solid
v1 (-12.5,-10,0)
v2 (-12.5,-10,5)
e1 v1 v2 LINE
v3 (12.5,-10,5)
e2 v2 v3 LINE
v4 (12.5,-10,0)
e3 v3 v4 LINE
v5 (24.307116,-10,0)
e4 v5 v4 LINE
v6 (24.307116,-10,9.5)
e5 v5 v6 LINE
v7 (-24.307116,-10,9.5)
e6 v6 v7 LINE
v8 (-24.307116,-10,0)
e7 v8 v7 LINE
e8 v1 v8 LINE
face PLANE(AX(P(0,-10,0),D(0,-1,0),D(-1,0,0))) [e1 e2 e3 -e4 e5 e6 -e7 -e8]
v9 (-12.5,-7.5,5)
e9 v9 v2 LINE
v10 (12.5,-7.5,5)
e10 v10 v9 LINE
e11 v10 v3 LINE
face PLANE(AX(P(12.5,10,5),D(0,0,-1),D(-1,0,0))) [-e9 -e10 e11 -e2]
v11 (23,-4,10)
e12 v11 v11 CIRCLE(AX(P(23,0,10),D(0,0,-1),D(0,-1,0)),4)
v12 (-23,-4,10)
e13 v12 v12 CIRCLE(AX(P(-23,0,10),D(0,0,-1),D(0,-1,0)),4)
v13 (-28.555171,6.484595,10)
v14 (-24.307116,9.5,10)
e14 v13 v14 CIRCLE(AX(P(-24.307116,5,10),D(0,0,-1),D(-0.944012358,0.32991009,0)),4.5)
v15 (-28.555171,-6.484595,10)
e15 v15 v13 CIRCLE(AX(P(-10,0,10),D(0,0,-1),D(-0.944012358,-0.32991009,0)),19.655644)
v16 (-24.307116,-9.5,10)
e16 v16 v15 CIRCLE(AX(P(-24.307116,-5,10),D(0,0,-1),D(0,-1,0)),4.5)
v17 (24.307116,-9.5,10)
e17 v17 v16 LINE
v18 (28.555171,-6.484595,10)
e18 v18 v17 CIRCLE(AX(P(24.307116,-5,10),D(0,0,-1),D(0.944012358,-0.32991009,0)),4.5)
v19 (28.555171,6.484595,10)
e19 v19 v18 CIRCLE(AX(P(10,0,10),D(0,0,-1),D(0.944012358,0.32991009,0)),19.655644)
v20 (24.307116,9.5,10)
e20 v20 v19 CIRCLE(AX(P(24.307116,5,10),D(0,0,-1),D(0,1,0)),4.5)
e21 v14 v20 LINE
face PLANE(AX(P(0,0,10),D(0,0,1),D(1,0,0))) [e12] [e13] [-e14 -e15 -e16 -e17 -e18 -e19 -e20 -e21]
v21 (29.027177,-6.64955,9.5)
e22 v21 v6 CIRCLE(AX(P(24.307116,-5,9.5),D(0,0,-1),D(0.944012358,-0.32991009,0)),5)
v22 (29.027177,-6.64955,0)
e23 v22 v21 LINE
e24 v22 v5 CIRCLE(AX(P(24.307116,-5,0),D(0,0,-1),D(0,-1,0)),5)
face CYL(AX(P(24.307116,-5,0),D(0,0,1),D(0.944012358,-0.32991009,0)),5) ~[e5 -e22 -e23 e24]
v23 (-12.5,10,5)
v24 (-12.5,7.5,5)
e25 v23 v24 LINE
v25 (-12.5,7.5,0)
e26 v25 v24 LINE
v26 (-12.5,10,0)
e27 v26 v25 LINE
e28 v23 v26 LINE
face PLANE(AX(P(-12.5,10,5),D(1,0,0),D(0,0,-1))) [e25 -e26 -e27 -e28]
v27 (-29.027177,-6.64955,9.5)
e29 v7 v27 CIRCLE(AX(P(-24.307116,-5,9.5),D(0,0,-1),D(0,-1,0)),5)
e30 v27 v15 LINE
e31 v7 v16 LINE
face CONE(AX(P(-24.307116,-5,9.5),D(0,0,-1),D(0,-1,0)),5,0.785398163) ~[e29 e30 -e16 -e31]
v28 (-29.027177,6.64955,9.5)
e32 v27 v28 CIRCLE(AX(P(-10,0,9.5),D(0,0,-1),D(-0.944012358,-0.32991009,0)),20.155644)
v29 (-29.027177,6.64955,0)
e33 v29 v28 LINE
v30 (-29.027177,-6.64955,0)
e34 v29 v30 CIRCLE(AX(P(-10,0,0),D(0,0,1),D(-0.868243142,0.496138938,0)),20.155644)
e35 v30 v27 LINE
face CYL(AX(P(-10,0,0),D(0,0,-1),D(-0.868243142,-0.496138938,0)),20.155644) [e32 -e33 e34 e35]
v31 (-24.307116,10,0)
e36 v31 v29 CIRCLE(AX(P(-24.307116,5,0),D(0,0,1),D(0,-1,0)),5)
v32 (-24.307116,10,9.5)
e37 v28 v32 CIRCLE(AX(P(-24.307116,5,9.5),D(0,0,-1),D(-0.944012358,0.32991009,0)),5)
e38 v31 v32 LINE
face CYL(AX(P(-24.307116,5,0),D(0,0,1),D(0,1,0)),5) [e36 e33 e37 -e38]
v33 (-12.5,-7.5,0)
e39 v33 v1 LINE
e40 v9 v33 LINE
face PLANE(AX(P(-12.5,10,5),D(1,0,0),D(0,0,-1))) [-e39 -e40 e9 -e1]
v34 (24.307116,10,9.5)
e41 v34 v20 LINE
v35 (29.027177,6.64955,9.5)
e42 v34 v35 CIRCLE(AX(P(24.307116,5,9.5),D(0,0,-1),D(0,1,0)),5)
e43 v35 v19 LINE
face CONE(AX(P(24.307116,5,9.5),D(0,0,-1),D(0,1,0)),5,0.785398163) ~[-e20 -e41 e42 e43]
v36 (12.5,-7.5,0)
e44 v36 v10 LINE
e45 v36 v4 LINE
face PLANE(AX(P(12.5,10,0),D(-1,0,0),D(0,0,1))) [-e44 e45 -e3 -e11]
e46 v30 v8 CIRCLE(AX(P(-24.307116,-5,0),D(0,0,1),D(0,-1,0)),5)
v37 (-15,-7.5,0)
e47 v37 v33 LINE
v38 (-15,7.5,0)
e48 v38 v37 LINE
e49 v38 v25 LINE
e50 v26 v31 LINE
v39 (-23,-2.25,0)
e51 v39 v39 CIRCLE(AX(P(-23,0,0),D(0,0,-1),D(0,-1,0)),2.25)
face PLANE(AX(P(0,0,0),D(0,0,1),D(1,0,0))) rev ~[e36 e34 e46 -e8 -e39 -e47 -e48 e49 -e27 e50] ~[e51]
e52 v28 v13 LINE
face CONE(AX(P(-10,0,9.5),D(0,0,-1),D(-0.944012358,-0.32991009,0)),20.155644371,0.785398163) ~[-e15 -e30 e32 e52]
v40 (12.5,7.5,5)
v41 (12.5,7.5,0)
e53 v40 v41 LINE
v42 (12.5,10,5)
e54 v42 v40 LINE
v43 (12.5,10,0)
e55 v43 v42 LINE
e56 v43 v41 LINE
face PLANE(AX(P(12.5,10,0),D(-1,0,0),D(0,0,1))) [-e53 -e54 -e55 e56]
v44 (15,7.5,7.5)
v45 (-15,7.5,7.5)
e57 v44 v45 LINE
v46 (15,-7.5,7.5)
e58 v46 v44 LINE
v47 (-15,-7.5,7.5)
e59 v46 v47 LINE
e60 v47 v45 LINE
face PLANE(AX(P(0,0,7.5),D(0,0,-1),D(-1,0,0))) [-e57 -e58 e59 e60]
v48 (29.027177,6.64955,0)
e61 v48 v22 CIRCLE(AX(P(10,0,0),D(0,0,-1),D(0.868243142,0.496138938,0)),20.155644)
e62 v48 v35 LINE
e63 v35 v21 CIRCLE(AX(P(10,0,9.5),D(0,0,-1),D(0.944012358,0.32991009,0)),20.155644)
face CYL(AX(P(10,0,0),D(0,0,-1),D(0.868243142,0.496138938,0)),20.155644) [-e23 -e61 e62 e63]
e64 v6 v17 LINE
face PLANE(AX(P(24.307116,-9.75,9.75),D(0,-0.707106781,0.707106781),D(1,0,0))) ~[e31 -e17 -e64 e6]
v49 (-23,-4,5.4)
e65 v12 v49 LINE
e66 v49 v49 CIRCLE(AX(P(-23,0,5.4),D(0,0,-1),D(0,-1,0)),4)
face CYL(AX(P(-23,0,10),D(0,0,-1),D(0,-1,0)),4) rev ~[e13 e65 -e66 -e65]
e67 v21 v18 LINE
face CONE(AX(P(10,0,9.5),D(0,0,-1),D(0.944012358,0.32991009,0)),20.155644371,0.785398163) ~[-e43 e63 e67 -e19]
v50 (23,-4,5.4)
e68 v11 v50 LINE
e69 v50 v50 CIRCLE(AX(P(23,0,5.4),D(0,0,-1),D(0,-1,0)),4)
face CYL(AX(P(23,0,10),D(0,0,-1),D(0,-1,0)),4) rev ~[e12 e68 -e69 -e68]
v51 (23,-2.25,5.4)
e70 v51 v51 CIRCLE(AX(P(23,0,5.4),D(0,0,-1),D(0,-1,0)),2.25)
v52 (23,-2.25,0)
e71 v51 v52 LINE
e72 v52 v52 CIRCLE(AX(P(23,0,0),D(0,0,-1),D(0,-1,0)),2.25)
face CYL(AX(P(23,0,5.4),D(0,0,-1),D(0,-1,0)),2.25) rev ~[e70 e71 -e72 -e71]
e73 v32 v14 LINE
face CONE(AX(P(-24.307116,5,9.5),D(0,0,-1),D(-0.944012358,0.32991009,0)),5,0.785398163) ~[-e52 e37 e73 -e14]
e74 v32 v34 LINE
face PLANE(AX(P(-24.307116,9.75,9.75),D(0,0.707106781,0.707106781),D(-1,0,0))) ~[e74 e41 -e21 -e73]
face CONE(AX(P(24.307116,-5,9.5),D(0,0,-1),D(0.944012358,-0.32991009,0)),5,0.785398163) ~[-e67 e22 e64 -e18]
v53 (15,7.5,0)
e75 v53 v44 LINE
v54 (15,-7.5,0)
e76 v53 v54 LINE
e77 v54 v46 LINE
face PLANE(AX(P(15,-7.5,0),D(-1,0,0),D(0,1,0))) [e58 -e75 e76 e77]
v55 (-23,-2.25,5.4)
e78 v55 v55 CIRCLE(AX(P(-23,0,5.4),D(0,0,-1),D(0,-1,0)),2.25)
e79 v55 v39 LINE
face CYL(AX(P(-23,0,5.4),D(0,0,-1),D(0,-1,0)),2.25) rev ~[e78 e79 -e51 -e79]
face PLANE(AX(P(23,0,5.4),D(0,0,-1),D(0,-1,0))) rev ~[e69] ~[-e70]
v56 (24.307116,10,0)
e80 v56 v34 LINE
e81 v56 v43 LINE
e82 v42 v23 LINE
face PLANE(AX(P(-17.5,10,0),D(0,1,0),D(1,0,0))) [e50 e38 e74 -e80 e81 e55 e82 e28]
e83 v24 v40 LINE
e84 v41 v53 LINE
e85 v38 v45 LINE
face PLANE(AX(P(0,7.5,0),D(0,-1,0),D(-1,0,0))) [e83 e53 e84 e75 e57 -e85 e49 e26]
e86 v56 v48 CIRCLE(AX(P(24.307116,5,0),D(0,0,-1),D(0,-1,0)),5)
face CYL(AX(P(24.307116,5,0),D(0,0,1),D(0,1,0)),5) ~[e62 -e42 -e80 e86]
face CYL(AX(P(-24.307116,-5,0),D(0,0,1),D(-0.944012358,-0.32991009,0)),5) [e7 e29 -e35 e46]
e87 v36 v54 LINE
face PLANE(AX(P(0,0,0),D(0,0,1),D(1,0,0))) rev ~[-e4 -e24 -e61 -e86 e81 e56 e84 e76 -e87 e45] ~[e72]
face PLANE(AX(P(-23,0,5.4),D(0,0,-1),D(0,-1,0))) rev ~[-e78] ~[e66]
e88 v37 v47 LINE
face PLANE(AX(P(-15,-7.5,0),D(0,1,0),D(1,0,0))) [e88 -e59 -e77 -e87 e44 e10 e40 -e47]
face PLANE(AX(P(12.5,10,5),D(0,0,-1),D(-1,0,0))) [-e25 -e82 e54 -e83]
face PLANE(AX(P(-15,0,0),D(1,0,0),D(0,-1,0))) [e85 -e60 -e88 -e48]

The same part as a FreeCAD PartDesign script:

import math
import FreeCAD as App
import Part
import Sketcher

V = App.Vector


def edges_at(feature, points):
    """Names of the edges that pass closest to the given points."""
    edges = feature.Shape.Edges
    near = lambda p: min(range(len(edges)), key=lambda i: edges[i].distToShape(Part.Vertex(*p))[0])
    return sorted({f"Edge{near(p) + 1}" for p in points})

doc = App.newDocument("Part")
body = doc.addObject("PartDesign::Body", "Body")

sketch1 = body.newObject("Sketcher::SketchObject", "Sketch")
sketch1.AttachmentSupport = (doc.getObject("XY_Plane"), [""])
sketch1.MapMode = "FlatFace"
sketch1.addGeometry([
    Part.LineSegment(V(-17.5, 10, 0), V(-17.5, -10, 0)),
    Part.LineSegment(V(-17.5, -10, 0), V(17.5, -10, 0)),
    Part.LineSegment(V(17.5, -10, 0), V(17.5, 10, 0)),
    Part.LineSegment(V(17.5, 10, 0), V(-17.5, 10, 0)),
], False)
sketch1.addConstraint([
    Sketcher.Constraint("Coincident", 0, 2, 1, 1),
    Sketcher.Constraint("Coincident", 1, 2, 2, 1),
    Sketcher.Constraint("Coincident", 2, 2, 3, 1),
    Sketcher.Constraint("Coincident", 3, 2, 0, 1),
    Sketcher.Constraint("Vertical", 0),
    Sketcher.Constraint("Horizontal", 1),
    Sketcher.Constraint("Vertical", 2),
    Sketcher.Constraint("Horizontal", 3),
    Sketcher.Constraint("Symmetric", 0, 2, 2, 2, -1, 1),
    Sketcher.Constraint("DistanceX", 1, 1, 1, 2, 35.0),
    Sketcher.Constraint("DistanceY", 0, 2, 0, 1, 20.0),
])
pad1 = body.newObject("PartDesign::Pad", "Pad")
pad1.Profile = sketch1
pad1.Length = 10

sketch2 = body.newObject("Sketcher::SketchObject", "Sketch001")
sketch2.AttachmentSupport = (doc.getObject("XY_Plane"), [""])
sketch2.MapMode = "FlatFace"
sketch2.addGeometry([
    Part.LineSegment(V(-15, -7.5, 0), V(-15, 7.5, 0)),
    Part.LineSegment(V(-15, 7.5, 0), V(15, 7.5, 0)),
    Part.LineSegment(V(15, 7.5, 0), V(15, -7.5, 0)),
    Part.LineSegment(V(15, -7.5, 0), V(-15, -7.5, 0)),
], False)
sketch2.addConstraint([
    Sketcher.Constraint("Coincident", 0, 2, 1, 1),
    Sketcher.Constraint("Coincident", 1, 2, 2, 1),
    Sketcher.Constraint("Coincident", 2, 2, 3, 1),
    Sketcher.Constraint("Coincident", 3, 2, 0, 1),
    Sketcher.Constraint("Vertical", 0),
    Sketcher.Constraint("Horizontal", 1),
    Sketcher.Constraint("Vertical", 2),
    Sketcher.Constraint("Horizontal", 3),
    Sketcher.Constraint("Symmetric", 0, 2, 2, 2, -1, 1),
    Sketcher.Constraint("DistanceX", 1, 1, 1, 2, 30.0),
    Sketcher.Constraint("DistanceY", 0, 1, 0, 2, 15.0),
])
pocket1 = body.newObject("PartDesign::Pocket", "Pocket")
pocket1.Profile = sketch2
pocket1.Length = 7.5
pocket1.Reversed = True

sketch3 = body.newObject("Sketcher::SketchObject", "Sketch002")
sketch3.AttachmentSupport = (doc.getObject("XZ_Plane"), [""])
sketch3.MapMode = "FlatFace"
sketch3.AttachmentOffset = App.Placement(V(0, 0, -10), App.Rotation())
sketch3.addGeometry([
    Part.LineSegment(V(12.5, 5, 0), V(12.5, 0, 0)),
    Part.LineSegment(V(12.5, 0, 0), V(-12.5, 0, 0)),
    Part.LineSegment(V(-12.5, 0, 0), V(-12.5, 5, 0)),
    Part.LineSegment(V(-12.5, 5, 0), V(12.5, 5, 0)),
], False)
sketch3.addConstraint([
    Sketcher.Constraint("Coincident", 0, 2, 1, 1),
    Sketcher.Constraint("Coincident", 1, 2, 2, 1),
    Sketcher.Constraint("Coincident", 2, 2, 3, 1),
    Sketcher.Constraint("Coincident", 3, 2, 0, 1),
    Sketcher.Constraint("Vertical", 0),
    Sketcher.Constraint("Horizontal", 1),
    Sketcher.Constraint("Vertical", 2),
    Sketcher.Constraint("Horizontal", 3),
    Sketcher.Constraint("Symmetric", 0, 2, 1, 2, -1, 1),
    Sketcher.Constraint("DistanceX", 1, 2, 1, 1, 25.0),
    Sketcher.Constraint("DistanceY", 0, 2, 0, 1, 5.0),
])
pocket2 = body.newObject("PartDesign::Pocket", "Pocket001")
pocket2.Profile = sketch3
pocket2.Type = "ThroughAll"
pocket2.Reversed = True

sketch4 = body.newObject("Sketcher::SketchObject", "Sketch003")
sketch4.AttachmentSupport = (doc.getObject("XY_Plane"), [""])
sketch4.MapMode = "FlatFace"
sketch4.addGeometry([
    Part.LineSegment(V(17.5, 10, 0), V(27.5, 10, 0)),
    Part.ArcOfCircle(Part.Circle(V(10, 0, 0), V(0, 0, 1), 20.155644), math.radians(-29.744881), math.radians(29.744881)),
    Part.LineSegment(V(27.5, -10, 0), V(17.5, -10, 0)),
    Part.LineSegment(V(17.5, -10, 0), V(17.5, 10, 0)),
    Part.LineSegment(V(-27.5, 10, 0), V(-17.5, 10, 0)),
    Part.LineSegment(V(-17.5, 10, 0), V(-17.5, -10, 0)),
    Part.LineSegment(V(-17.5, -10, 0), V(-27.5, -10, 0)),
    Part.ArcOfCircle(Part.Circle(V(-10, 0, 0), V(0, 0, 1), 20.155644), math.radians(150.255119), math.radians(209.744881)),
], False)
sketch4.addConstraint([
    Sketcher.Constraint("Coincident", 0, 2, 1, 2),
    Sketcher.Constraint("Coincident", 1, 1, 2, 1),
    Sketcher.Constraint("Coincident", 2, 2, 3, 1),
    Sketcher.Constraint("Coincident", 3, 2, 0, 1),
    Sketcher.Constraint("Coincident", 4, 2, 5, 1),
    Sketcher.Constraint("Coincident", 5, 2, 6, 1),
    Sketcher.Constraint("Coincident", 6, 2, 7, 2),
    Sketcher.Constraint("Coincident", 7, 1, 4, 1),
    Sketcher.Constraint("Horizontal", 0),
    Sketcher.Constraint("Horizontal", 2),
    Sketcher.Constraint("Vertical", 3),
    Sketcher.Constraint("Horizontal", 4),
    Sketcher.Constraint("Vertical", 5),
    Sketcher.Constraint("Horizontal", 6),
    Sketcher.Constraint("Equal", 1, 7),
    Sketcher.Constraint("Symmetric", 1, 3, 7, 3, -1, 1),
    Sketcher.Constraint("Symmetric", 2, 2, 4, 2, -1, 1),
    Sketcher.Constraint("Symmetric", 1, 1, 6, 2, -2),
    Sketcher.Constraint("Horizontal", 3, 2, 4, 2),
    Sketcher.Constraint("DistanceX", 0, 1, 0, 2, 10.0),
    Sketcher.Constraint("DistanceX", -1, 1, 1, 3, 10.0),
    Sketcher.Constraint("DistanceY", -1, 1, 0, 2, 10.0),
    Sketcher.Constraint("DistanceX", 4, 2, 3, 2, 35.0),
])
pad2 = body.newObject("PartDesign::Pad", "Pad001")
pad2.Profile = sketch4
pad2.Length = 10

sketch5 = body.newObject("Sketcher::SketchObject", "Sketch004")
sketch5.AttachmentSupport = (doc.getObject("XY_Plane"), [""])
sketch5.MapMode = "FlatFace"
sketch5.AttachmentOffset = App.Placement(V(0, 0, 10), App.Rotation())
sketch5.addGeometry([
    Part.Circle(V(23, 0, 0), V(0, 0, 1), 2.25),
    Part.Circle(V(-23, 0, 0), V(0, 0, 1), 2.25),
], False)
sketch5.addConstraint([
    Sketcher.Constraint("Equal", 0, 1),
    Sketcher.Constraint("Symmetric", 0, 3, 1, 3, -1, 1),
    Sketcher.Constraint("PointOnObject", 0, 3, -1),
    Sketcher.Constraint("Diameter", 0, 4.5),
    Sketcher.Constraint("DistanceX", -1, 1, 0, 3, 23.0),
])
doc.recompute()
hole = body.newObject("PartDesign::Hole", "Hole")
hole.Profile = sketch5
hole.ThreadType = "None"
hole.Diameter = 4.5
hole.DepthType = "ThroughAll"
hole.HoleCutType = "Counterbore"
hole.HoleCutDiameter = 8
hole.HoleCutDepth = 4.6
doc.recompute()

fillet = body.newObject("PartDesign::Fillet", "Fillet")
fillet.Base = (hole, edges_at(hole, [
    (27.5, 10, 5),
    (-27.5, 10, 5),
    (-27.5, -10, 5),
    (27.5, -10, 5),
]))
fillet.Radius = 5
doc.recompute()

chamfer = body.newObject("PartDesign::Chamfer", "Chamfer")
chamfer.Base = (fillet, edges_at(fillet, [(0, 10, 10), (0, -10, 10)]))
chamfer.Size = 0.5

doc.recompute()
